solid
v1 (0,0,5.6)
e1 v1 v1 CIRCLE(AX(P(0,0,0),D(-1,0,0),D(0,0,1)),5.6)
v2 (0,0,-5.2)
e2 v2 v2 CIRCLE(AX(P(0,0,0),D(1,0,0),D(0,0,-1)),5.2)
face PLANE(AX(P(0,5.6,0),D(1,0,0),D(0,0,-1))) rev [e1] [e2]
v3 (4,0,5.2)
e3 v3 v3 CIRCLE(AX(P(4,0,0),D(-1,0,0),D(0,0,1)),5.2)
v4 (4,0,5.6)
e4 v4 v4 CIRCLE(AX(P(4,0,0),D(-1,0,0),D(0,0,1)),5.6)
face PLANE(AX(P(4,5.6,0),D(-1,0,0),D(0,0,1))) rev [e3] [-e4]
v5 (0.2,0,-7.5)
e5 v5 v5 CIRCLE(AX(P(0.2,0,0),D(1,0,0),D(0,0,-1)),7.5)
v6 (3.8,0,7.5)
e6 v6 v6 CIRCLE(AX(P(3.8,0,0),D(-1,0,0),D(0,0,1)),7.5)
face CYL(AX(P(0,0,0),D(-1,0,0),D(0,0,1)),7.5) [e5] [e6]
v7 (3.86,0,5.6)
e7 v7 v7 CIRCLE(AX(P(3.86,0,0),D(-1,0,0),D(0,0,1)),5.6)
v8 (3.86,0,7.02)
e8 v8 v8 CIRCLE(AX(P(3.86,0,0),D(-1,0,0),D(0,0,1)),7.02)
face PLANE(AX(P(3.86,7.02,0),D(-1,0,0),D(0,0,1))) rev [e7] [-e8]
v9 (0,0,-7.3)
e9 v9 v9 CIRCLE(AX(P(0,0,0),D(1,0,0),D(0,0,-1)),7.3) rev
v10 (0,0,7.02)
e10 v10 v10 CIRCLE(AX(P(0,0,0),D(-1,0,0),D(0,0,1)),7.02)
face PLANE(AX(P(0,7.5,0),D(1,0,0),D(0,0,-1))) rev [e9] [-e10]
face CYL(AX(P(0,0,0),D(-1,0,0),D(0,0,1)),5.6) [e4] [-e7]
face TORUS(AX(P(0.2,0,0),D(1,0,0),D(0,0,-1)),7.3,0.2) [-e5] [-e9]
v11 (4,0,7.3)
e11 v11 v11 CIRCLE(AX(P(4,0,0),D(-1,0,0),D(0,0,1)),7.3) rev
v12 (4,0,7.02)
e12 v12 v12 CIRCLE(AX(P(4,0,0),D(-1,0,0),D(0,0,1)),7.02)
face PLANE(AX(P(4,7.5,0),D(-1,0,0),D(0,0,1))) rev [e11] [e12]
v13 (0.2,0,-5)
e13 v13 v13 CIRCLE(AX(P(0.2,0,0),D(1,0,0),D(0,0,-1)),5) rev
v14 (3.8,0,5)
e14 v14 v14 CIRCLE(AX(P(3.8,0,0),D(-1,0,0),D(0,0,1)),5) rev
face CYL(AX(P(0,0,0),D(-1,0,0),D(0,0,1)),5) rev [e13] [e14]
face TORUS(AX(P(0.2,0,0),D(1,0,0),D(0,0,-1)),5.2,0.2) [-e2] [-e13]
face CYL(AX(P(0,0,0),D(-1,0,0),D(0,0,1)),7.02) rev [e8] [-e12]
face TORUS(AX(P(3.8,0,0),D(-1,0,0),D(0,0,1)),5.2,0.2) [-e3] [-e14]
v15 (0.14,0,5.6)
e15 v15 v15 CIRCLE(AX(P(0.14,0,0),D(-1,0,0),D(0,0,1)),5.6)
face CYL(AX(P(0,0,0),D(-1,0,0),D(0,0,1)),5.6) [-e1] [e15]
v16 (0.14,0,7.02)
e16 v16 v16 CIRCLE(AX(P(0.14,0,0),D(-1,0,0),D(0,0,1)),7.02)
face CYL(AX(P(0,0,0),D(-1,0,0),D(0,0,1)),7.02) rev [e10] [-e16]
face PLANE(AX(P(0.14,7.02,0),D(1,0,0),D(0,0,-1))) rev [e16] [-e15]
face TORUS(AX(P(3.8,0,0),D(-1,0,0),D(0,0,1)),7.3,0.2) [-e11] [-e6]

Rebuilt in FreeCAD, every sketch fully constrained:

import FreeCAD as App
import Part
import Sketcher

V = App.Vector


def edges_at(feature, points):
    """Names of the edges that pass closest to the given points."""
    edges = feature.Shape.Edges
    near = lambda p: min(range(len(edges)), key=lambda i: edges[i].distToShape(Part.Vertex(*p))[0])
    return sorted({f"Edge{near(p) + 1}" for p in points})


def add_polygon(sketch, points):
    """Adds a closed chain of lines whose ends are joined by coincident constraints."""
    first, n = sketch.GeometryCount, len(points)
    for a, b in zip(points, points[1:] + points[:1]):
        sketch.addGeometry(Part.LineSegment(App.Vector(*a, 0), App.Vector(*b, 0)), False)
    for i in range(n):
        sketch.addConstraint(Sketcher.Constraint("Coincident", first + i, 2, first + (i + 1) % n, 1))

doc = App.newDocument("Part")
body = doc.addObject("PartDesign::Body", "Body")

# Sketch on XY plane
sketch1 = body.newObject("Sketcher::SketchObject", "Sketch")
sketch1.AttachmentSupport = (doc.getObject("XY_Plane"), [""])
sketch1.MapMode = "FlatFace"
add_polygon(sketch1, [(0, 5), (4, 5), (4, 5.6), (3.86, 5.6), (3.86, 7.02), (4, 7.02), (4, 7.5), (0, 7.5), (0, 7.02), (0.14, 7.02), (0.14, 5.6), (0, 5.6)])  # lines 0-11
sketch1.addConstraint([
    Sketcher.Constraint("Horizontal", 0),
    Sketcher.Constraint("Vertical", 1),
    Sketcher.Constraint("Horizontal", 2),
    Sketcher.Constraint("Vertical", 3),
    Sketcher.Constraint("Horizontal", 4),
    Sketcher.Constraint("Vertical", 5),
    Sketcher.Constraint("Horizontal", 6),
    Sketcher.Constraint("Vertical", 7),
    Sketcher.Constraint("Horizontal", 8),
    Sketcher.Constraint("Vertical", 9),
    Sketcher.Constraint("Horizontal", 10),
    Sketcher.Constraint("Vertical", 11),
    Sketcher.Constraint("PointOnObject", 6, 2, -2),
    Sketcher.Constraint("PointOnObject", 10, 2, -2),
    Sketcher.Constraint("Horizontal", 4, 2, 7, 2),
    Sketcher.Constraint("Horizontal", 2, 2, 9, 2),
    Sketcher.Constraint("Vertical", 1, 2, 4, 2),
    Sketcher.Constraint("Equal", 4, 8),
    Sketcher.Constraint("DistanceX", 0, 1, 0, 2, 4.0),
    Sketcher.Constraint("DistanceY", 1, 1, 1, 2, 0.6),
    Sketcher.Constraint("DistanceY", -1, 1, 0, 2, 5.0),
    Sketcher.Constraint("DistanceX", 2, 2, 2, 1, 0.14),
    Sketcher.Constraint("DistanceY", 3, 1, 3, 2, 1.42),
    Sketcher.Constraint("DistanceY", 5, 1, 5, 2, 0.48),
])
revolution = body.newObject("PartDesign::Revolution", "Revolution")
revolution.Profile = sketch1
revolution.ReferenceAxis = (sketch1, ["H_Axis"])
revolution.Angle = 360
doc.recompute()

fillet = body.newObject("PartDesign::Fillet", "Fillet")
fillet.Base = (revolution, edges_at(revolution, [(0, 0, -7.5), (4, 0, -7.5)]))
fillet.Radius = 0.2
doc.recompute()

fillet2 = body.newObject("PartDesign::Fillet", "Fillet001")
fillet2.Base = (fillet, edges_at(fillet, [(4, 0, -5), (0, 0, -5)]))
fillet2.Radius = 0.2

doc.recompute()
